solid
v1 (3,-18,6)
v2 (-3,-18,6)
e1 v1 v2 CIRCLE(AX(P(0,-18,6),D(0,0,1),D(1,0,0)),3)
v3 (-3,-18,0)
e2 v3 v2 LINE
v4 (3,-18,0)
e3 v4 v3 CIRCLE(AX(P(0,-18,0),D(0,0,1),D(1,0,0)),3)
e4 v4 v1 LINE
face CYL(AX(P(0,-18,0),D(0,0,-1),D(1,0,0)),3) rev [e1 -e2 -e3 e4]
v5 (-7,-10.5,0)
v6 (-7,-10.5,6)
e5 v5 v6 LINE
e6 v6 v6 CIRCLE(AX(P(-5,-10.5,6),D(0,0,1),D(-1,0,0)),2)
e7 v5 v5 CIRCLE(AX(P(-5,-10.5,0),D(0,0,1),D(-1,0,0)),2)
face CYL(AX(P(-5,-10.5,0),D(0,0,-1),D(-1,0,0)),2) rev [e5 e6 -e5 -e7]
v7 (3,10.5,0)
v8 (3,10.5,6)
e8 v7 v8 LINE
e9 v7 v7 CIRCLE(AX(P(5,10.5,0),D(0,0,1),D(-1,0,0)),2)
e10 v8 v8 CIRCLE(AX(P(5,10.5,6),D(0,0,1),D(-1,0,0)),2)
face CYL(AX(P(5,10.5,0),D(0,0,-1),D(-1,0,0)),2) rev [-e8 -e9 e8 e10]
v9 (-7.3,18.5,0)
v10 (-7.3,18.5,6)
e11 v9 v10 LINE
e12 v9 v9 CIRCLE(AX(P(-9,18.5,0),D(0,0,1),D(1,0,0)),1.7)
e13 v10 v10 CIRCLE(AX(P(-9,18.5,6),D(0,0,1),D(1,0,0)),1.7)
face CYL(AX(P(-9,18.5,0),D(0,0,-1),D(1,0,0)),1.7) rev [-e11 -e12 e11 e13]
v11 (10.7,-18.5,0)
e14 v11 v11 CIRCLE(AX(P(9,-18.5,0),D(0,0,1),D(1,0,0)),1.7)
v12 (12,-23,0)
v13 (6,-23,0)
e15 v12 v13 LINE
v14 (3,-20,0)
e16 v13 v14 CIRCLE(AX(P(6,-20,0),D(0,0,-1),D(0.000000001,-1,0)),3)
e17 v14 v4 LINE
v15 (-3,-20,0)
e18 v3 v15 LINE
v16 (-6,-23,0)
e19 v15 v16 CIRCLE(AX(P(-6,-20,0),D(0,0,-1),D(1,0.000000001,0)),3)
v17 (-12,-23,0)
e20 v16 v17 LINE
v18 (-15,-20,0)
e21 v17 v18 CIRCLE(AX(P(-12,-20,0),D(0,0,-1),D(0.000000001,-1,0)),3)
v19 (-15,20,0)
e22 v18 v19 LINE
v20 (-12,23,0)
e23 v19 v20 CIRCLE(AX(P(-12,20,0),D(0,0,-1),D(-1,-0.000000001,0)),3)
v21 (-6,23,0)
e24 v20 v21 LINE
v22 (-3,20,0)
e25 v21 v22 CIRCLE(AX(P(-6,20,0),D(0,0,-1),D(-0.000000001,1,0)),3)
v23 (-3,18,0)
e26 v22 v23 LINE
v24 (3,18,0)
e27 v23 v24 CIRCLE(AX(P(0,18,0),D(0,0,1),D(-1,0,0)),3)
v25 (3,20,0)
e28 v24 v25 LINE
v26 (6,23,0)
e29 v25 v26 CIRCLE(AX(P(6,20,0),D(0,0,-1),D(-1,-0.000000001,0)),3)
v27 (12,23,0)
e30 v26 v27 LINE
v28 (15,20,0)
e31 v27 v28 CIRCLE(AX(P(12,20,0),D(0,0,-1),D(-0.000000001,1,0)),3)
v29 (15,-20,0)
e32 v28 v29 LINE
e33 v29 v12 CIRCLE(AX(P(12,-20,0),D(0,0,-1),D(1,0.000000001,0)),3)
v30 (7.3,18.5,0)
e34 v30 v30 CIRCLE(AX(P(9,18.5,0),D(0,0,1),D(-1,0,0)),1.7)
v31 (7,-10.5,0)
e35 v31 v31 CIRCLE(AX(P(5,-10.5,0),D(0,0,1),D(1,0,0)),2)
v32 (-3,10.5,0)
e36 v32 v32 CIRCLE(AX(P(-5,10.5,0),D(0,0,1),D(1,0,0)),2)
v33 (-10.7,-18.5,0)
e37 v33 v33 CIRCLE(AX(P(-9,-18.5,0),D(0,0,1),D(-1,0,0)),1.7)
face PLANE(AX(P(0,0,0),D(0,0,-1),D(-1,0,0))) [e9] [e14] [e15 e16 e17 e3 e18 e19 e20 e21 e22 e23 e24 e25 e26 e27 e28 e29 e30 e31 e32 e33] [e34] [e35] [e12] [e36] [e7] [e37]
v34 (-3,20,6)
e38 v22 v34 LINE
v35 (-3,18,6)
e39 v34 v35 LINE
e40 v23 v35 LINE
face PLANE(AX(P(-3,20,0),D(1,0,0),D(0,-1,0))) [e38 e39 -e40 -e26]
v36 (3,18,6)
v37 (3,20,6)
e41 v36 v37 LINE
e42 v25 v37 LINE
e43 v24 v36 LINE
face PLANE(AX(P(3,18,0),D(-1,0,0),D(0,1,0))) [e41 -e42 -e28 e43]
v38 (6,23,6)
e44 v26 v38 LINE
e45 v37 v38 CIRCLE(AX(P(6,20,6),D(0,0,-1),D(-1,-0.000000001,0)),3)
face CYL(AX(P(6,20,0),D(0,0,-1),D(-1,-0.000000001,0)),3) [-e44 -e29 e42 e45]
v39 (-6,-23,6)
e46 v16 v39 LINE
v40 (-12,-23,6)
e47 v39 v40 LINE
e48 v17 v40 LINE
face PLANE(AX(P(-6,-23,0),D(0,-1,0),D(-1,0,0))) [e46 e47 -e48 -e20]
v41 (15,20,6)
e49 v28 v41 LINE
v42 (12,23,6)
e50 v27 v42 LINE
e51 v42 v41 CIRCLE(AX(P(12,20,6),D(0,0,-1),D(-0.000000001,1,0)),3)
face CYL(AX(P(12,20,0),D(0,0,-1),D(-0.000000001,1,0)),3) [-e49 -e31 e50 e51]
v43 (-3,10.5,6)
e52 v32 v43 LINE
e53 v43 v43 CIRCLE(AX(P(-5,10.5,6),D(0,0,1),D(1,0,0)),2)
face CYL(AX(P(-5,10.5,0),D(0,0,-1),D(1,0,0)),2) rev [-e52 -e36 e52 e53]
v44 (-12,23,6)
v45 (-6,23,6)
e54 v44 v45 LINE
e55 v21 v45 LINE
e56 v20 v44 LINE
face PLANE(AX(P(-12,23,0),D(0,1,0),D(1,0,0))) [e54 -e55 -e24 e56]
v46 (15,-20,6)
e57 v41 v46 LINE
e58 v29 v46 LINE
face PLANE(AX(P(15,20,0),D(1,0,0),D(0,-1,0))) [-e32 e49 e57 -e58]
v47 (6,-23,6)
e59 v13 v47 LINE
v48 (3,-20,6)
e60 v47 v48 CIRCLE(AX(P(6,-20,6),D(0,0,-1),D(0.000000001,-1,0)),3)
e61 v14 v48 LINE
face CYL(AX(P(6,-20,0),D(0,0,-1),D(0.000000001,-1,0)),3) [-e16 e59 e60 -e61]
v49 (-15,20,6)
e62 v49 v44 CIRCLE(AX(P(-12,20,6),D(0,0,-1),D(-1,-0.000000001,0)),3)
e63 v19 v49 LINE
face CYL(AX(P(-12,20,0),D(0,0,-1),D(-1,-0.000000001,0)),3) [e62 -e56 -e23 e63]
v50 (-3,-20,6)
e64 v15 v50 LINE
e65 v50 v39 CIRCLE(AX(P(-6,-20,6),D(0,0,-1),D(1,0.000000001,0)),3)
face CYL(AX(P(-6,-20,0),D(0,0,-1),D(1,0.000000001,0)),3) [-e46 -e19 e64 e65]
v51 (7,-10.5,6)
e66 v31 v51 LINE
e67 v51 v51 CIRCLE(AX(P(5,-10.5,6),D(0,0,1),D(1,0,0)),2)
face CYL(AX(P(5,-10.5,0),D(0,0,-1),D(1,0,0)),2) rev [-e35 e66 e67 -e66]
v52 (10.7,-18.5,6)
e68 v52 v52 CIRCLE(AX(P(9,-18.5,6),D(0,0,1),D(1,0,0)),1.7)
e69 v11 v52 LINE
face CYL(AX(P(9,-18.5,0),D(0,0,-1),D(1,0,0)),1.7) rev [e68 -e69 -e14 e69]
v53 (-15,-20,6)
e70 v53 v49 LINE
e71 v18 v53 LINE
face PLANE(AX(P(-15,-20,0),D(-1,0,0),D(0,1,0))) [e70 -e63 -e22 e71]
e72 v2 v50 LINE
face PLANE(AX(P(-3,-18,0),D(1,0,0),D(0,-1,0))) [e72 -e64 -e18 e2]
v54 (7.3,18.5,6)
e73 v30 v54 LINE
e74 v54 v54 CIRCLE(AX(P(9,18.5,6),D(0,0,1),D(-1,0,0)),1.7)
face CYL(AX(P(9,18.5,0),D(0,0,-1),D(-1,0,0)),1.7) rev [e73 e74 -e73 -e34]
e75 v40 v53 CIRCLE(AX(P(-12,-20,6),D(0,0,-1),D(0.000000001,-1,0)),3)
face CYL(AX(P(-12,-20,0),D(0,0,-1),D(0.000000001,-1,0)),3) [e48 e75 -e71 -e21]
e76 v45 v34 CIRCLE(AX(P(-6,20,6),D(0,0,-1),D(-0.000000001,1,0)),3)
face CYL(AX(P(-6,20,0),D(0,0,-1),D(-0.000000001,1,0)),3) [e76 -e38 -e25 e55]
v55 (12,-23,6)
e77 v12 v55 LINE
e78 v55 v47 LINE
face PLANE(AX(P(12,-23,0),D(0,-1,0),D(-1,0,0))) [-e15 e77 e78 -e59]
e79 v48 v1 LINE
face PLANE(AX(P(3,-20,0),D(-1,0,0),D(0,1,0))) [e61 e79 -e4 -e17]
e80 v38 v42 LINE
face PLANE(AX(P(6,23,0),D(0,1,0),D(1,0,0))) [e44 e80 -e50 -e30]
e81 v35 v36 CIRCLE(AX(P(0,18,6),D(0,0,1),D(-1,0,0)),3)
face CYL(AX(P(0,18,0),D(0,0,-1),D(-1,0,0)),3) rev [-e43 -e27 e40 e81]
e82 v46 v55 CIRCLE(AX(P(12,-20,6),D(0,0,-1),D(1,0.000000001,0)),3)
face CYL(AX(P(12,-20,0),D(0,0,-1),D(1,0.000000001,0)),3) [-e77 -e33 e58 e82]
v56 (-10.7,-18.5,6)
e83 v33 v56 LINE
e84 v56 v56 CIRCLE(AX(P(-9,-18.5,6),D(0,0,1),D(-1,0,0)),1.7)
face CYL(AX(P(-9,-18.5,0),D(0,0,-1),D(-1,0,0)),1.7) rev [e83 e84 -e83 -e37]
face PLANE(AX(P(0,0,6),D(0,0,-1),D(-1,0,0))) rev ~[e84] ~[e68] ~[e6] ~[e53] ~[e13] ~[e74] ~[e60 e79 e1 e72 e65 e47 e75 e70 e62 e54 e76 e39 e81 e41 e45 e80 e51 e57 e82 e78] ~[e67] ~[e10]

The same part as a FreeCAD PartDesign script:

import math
import FreeCAD as App
import Part
import Sketcher
from FreeCAD import Vector
Q = App.Units.Quantity

doc = App.newDocument("Part")
params = doc.addObject("Spreadsheet::Sheet", "Params")
for row, (alias, value) in enumerate([
    ("sketch1_diameter", "4 mm"),
    ("sketch1_radius", "3 mm"),
    ("sketch1_diameter2", "3.4 mm"),
    ("sketch1_width", "6 mm"),
    ("sketch1_height", "40 mm"),
    ("pad1_length", "6 mm"),
], start=1):
    params.set(f"A{row}", alias)
    params.set(f"B{row}", "=" + value)
    params.setAlias(f"B{row}", alias)

body = doc.addObject("PartDesign::Body", "Body")

sketch1 = doc.addObject("Sketcher::SketchObject", "Sketch")
body.addObject(sketch1)
sketch1.AttachmentSupport = (doc.XY_Plane, [""])
sketch1.MapMode = "FlatFace"
sketch1.addGeometry([
    Part.LineSegment(Vector(-6, 23, 0), Vector(-12, 23, 0)),
    Part.ArcOfCircle(Part.Circle(Vector(-12, 20, 0), Vector(0, 0, 1), 3), math.radians(90), math.radians(180)),
    Part.LineSegment(Vector(-15, 20, 0), Vector(-15, -20, 0)),
    Part.ArcOfCircle(Part.Circle(Vector(-12, -20, 0), Vector(0, 0, 1), 3), math.radians(180), math.radians(270)),
    Part.LineSegment(Vector(-12, -23, 0), Vector(-6, -23, 0)),
    Part.ArcOfCircle(Part.Circle(Vector(-6, -20, 0), Vector(0, 0, 1), 3), math.radians(-90), math.radians(0)),
    Part.LineSegment(Vector(-3, -20, 0), Vector(-3, -18, 0)),
    Part.ArcOfCircle(Part.Circle(Vector(0, -18, 0), Vector(0, 0, 1), 3), math.radians(0), math.radians(180)),
    Part.LineSegment(Vector(3, -18, 0), Vector(3, -20, 0)),
    Part.ArcOfCircle(Part.Circle(Vector(6, -20, 0), Vector(0, 0, 1), 3), math.radians(180), math.radians(270)),
    Part.LineSegment(Vector(6, -23, 0), Vector(12, -23, 0)),
    Part.ArcOfCircle(Part.Circle(Vector(12, -20, 0), Vector(0, 0, 1), 3), math.radians(-90), math.radians(0)),
    Part.LineSegment(Vector(15, -20, 0), Vector(15, 20, 0)),
    Part.ArcOfCircle(Part.Circle(Vector(12, 20, 0), Vector(0, 0, 1), 3), math.radians(0), math.radians(90)),
    Part.LineSegment(Vector(12, 23, 0), Vector(6, 23, 0)),
    Part.ArcOfCircle(Part.Circle(Vector(6, 20, 0), Vector(0, 0, 1), 3), math.radians(90), math.radians(180)),
    Part.LineSegment(Vector(3, 20, 0), Vector(3, 18, 0)),
    Part.ArcOfCircle(Part.Circle(Vector(0, 18, 0), Vector(0, 0, 1), 3), math.radians(180), math.radians(360)),
    Part.LineSegment(Vector(-3, 18, 0), Vector(-3, 20, 0)),
    Part.ArcOfCircle(Part.Circle(Vector(-6, 20, 0), Vector(0, 0, 1), 3), math.radians(0), math.radians(90)),
    Part.Circle(Vector(9, -18.5, 0), Vector(0, 0, 1), 1.7),
    Part.Circle(Vector(5, -10.5, 0), Vector(0, 0, 1), 2),
    Part.Circle(Vector(-5, -10.5, 0), Vector(0, 0, 1), 2),
    Part.Circle(Vector(-9, -18.5, 0), Vector(0, 0, 1), 1.7),
    Part.Circle(Vector(9, 18.5, 0), Vector(0, 0, 1), 1.7),
    Part.Circle(Vector(5, 10.5, 0), Vector(0, 0, 1), 2),
    Part.Circle(Vector(-5, 10.5, 0), Vector(0, 0, 1), 2),
    Part.Circle(Vector(-9, 18.5, 0), Vector(0, 0, 1), 1.7),
], False)
sketch1.addConstraint([
    Sketcher.Constraint("Tangent", 0, 2, 1, 1),
    Sketcher.Constraint("Tangent", 1, 2, 2, 1),
    Sketcher.Constraint("Tangent", 2, 2, 3, 1),
    Sketcher.Constraint("Tangent", 3, 2, 4, 1),
    Sketcher.Constraint("Tangent", 4, 2, 5, 1),
    Sketcher.Constraint("Tangent", 5, 2, 6, 1),
    Sketcher.Constraint("Tangent", 6, 2, 7, 2),
    Sketcher.Constraint("Tangent", 7, 1, 8, 1),
    Sketcher.Constraint("Tangent", 8, 2, 9, 1),
    Sketcher.Constraint("Tangent", 9, 2, 10, 1),
    Sketcher.Constraint("Tangent", 10, 2, 11, 1),
    Sketcher.Constraint("Tangent", 11, 2, 12, 1),
    Sketcher.Constraint("Tangent", 12, 2, 13, 1),
    Sketcher.Constraint("Tangent", 13, 2, 14, 1),
    Sketcher.Constraint("Tangent", 14, 2, 15, 1),
    Sketcher.Constraint("Tangent", 15, 2, 16, 1),
    Sketcher.Constraint("Tangent", 16, 2, 17, 2),
    Sketcher.Constraint("Tangent", 17, 1, 18, 1),
    Sketcher.Constraint("Tangent", 18, 2, 19, 1),
    Sketcher.Constraint("Tangent", 19, 2, 0, 1),
    Sketcher.Constraint("Horizontal", 0),
    Sketcher.Constraint("Vertical", 2),
    Sketcher.Constraint("Horizontal", 4),
    Sketcher.Constraint("Vertical", 6),
    Sketcher.Constraint("Vertical", 8),
    Sketcher.Constraint("Horizontal", 10),
    Sketcher.Constraint("Vertical", 12),
    Sketcher.Constraint("Horizontal", 14),
    Sketcher.Constraint("Vertical", 16),
    Sketcher.Constraint("Vertical", 18),
    Sketcher.Constraint("Equal", 1, 3),
    Sketcher.Constraint("Equal", 3, 5),
    Sketcher.Constraint("Equal", 5, 7),
    Sketcher.Constraint("Equal", 7, 9),
    Sketcher.Constraint("Equal", 9, 11),
    Sketcher.Constraint("Equal", 11, 13),
    Sketcher.Constraint("Equal", 13, 15),
    Sketcher.Constraint("Equal", 15, 17),
    Sketcher.Constraint("Equal", 17, 19),
    Sketcher.Constraint("Equal", 21, 22),
    Sketcher.Constraint("Equal", 20, 23),
    Sketcher.Constraint("Equal", 23, 24),
    Sketcher.Constraint("Equal", 22, 25),
    Sketcher.Constraint("Equal", 25, 26),
    Sketcher.Constraint("Equal", 24, 27),
    Sketcher.Constraint("Symmetric", 1, 3, 11, 3, -1, 1),
    Sketcher.Constraint("Symmetric", 5, 3, 15, 3, -1, 1),
    Sketcher.Constraint("Symmetric", 23, 3, 24, 3, -1, 1),
    Sketcher.Constraint("Symmetric", 22, 3, 25, 3, -1, 1),
    Sketcher.Constraint("Symmetric", 21, 3, 26, 3, -1, 1),
    Sketcher.Constraint("Symmetric", 20, 3, 27, 3, -1, 1),
    Sketcher.Constraint("Symmetric", 5, 3, 9, 3, -2),
    Sketcher.Constraint("Symmetric", 21, 3, 22, 3, -2),
    Sketcher.Constraint("Symmetric", 20, 3, 23, 3, -2),
    Sketcher.Constraint("Equal", 8, 16),
    Sketcher.Constraint("Diameter", 21, Q("4 mm")),
    Sketcher.Constraint("Radius", 1, Q("3 mm")),
    Sketcher.Constraint("Diameter", 20, Q("3.4 mm")),
    Sketcher.Constraint("DistanceX", 0, 2, 0, 1, Q("6 mm")),
    Sketcher.Constraint("DistanceY", 2, 2, 2, 1, Q("40 mm")),
    Sketcher.Constraint("DistanceY", 6, 1, 6, 2, Q("2 mm")),
    Sketcher.Constraint("DistanceX", -1, 1, 20, 3, Q("9 mm")),
    Sketcher.Constraint("DistanceX", -1, 1, 21, 3, Q("5 mm")),
    Sketcher.Constraint("DistanceY", 20, 3, 21, 3, Q("8 mm")),
    Sketcher.Constraint("DistanceY", 20, 3, -1, 1, Q("18.5 mm")),
])
sketch1.setExpression("Constraints[55]", "Params.sketch1_diameter")
sketch1.setExpression("Constraints[56]", "Params.sketch1_radius")
sketch1.setExpression("Constraints[57]", "Params.sketch1_diameter2")
sketch1.setExpression("Constraints[58]", "Params.sketch1_width")
sketch1.setExpression("Constraints[59]", "Params.sketch1_height")
pad1 = doc.addObject("PartDesign::Pad", "Pad")
body.addObject(pad1)
pad1.Profile = sketch1
pad1.setExpression("Length", "Params.pad1_length")

doc.recompute()
